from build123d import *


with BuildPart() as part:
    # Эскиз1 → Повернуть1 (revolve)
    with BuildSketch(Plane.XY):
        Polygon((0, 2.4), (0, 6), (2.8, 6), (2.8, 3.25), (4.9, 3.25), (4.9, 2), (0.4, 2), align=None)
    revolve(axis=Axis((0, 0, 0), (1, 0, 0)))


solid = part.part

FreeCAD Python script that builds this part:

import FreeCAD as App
import Part
import Sketcher
from FreeCAD import Vector
Q = App.Units.Quantity


def add_polygon(sketch, points):
    """Adds a closed chain of lines whose ends are joined by coincident constraints."""
    first, n = sketch.GeometryCount, len(points)
    for a, b in zip(points, points[1:] + points[:1]):
        sketch.addGeometry(Part.LineSegment(App.Vector(*a, 0), App.Vector(*b, 0)), False)
    for i in range(n):
        sketch.addConstraint(Sketcher.Constraint("Coincident", first + i, 2, first + (i + 1) % n, 1))

doc = App.newDocument("Part")
body = doc.addObject("PartDesign::Body", "Body")

# Sketch on XY plane
sketch1 = body.newObject("Sketcher::SketchObject", "Sketch")
sketch1.AttachmentSupport = (doc.getObject("XY_Plane"), [""])
sketch1.MapMode = "FlatFace"
add_polygon(sketch1, [(0, 6), (0, 2.4), (0.4, 2), (4.9, 2), (4.9, 3.2), (2.8, 3.2), (2.8, 6)])  # lines 0-6
sketch1.addConstraint([
    Sketcher.Constraint("Vertical", 0),
    Sketcher.Constraint("Horizontal", 2),
    Sketcher.Constraint("Vertical", 3),
    Sketcher.Constraint("Horizontal", 4),
    Sketcher.Constraint("Vertical", 5),
    Sketcher.Constraint("Horizontal", 6),
    Sketcher.Constraint("PointOnObject", 0, 2, -2),
    Sketcher.Constraint("Angle", 1, Q("-45 deg")),
    Sketcher.Constraint("DistanceX", 2, 1, 2, 2, 4.5),
    Sketcher.Constraint("DistanceX", 4, 2, 4, 1, 2.1),
    Sketcher.Constraint("DistanceX", 6, 2, 6, 1, 2.8),
    Sketcher.Constraint("DistanceY", 0, 2, 0, 1, 3.6),
    Sketcher.Constraint("DistanceY", -1, 1, 1, 2, 2.0),
    Sketcher.Constraint("DistanceY", 3, 1, 3, 2, 1.25),
])
revolution = body.newObject("PartDesign::Revolution", "Revolution")
revolution.Profile = sketch1
revolution.ReferenceAxis = (sketch1, ["H_Axis"])
revolution.Angle = 360

doc.recompute()
